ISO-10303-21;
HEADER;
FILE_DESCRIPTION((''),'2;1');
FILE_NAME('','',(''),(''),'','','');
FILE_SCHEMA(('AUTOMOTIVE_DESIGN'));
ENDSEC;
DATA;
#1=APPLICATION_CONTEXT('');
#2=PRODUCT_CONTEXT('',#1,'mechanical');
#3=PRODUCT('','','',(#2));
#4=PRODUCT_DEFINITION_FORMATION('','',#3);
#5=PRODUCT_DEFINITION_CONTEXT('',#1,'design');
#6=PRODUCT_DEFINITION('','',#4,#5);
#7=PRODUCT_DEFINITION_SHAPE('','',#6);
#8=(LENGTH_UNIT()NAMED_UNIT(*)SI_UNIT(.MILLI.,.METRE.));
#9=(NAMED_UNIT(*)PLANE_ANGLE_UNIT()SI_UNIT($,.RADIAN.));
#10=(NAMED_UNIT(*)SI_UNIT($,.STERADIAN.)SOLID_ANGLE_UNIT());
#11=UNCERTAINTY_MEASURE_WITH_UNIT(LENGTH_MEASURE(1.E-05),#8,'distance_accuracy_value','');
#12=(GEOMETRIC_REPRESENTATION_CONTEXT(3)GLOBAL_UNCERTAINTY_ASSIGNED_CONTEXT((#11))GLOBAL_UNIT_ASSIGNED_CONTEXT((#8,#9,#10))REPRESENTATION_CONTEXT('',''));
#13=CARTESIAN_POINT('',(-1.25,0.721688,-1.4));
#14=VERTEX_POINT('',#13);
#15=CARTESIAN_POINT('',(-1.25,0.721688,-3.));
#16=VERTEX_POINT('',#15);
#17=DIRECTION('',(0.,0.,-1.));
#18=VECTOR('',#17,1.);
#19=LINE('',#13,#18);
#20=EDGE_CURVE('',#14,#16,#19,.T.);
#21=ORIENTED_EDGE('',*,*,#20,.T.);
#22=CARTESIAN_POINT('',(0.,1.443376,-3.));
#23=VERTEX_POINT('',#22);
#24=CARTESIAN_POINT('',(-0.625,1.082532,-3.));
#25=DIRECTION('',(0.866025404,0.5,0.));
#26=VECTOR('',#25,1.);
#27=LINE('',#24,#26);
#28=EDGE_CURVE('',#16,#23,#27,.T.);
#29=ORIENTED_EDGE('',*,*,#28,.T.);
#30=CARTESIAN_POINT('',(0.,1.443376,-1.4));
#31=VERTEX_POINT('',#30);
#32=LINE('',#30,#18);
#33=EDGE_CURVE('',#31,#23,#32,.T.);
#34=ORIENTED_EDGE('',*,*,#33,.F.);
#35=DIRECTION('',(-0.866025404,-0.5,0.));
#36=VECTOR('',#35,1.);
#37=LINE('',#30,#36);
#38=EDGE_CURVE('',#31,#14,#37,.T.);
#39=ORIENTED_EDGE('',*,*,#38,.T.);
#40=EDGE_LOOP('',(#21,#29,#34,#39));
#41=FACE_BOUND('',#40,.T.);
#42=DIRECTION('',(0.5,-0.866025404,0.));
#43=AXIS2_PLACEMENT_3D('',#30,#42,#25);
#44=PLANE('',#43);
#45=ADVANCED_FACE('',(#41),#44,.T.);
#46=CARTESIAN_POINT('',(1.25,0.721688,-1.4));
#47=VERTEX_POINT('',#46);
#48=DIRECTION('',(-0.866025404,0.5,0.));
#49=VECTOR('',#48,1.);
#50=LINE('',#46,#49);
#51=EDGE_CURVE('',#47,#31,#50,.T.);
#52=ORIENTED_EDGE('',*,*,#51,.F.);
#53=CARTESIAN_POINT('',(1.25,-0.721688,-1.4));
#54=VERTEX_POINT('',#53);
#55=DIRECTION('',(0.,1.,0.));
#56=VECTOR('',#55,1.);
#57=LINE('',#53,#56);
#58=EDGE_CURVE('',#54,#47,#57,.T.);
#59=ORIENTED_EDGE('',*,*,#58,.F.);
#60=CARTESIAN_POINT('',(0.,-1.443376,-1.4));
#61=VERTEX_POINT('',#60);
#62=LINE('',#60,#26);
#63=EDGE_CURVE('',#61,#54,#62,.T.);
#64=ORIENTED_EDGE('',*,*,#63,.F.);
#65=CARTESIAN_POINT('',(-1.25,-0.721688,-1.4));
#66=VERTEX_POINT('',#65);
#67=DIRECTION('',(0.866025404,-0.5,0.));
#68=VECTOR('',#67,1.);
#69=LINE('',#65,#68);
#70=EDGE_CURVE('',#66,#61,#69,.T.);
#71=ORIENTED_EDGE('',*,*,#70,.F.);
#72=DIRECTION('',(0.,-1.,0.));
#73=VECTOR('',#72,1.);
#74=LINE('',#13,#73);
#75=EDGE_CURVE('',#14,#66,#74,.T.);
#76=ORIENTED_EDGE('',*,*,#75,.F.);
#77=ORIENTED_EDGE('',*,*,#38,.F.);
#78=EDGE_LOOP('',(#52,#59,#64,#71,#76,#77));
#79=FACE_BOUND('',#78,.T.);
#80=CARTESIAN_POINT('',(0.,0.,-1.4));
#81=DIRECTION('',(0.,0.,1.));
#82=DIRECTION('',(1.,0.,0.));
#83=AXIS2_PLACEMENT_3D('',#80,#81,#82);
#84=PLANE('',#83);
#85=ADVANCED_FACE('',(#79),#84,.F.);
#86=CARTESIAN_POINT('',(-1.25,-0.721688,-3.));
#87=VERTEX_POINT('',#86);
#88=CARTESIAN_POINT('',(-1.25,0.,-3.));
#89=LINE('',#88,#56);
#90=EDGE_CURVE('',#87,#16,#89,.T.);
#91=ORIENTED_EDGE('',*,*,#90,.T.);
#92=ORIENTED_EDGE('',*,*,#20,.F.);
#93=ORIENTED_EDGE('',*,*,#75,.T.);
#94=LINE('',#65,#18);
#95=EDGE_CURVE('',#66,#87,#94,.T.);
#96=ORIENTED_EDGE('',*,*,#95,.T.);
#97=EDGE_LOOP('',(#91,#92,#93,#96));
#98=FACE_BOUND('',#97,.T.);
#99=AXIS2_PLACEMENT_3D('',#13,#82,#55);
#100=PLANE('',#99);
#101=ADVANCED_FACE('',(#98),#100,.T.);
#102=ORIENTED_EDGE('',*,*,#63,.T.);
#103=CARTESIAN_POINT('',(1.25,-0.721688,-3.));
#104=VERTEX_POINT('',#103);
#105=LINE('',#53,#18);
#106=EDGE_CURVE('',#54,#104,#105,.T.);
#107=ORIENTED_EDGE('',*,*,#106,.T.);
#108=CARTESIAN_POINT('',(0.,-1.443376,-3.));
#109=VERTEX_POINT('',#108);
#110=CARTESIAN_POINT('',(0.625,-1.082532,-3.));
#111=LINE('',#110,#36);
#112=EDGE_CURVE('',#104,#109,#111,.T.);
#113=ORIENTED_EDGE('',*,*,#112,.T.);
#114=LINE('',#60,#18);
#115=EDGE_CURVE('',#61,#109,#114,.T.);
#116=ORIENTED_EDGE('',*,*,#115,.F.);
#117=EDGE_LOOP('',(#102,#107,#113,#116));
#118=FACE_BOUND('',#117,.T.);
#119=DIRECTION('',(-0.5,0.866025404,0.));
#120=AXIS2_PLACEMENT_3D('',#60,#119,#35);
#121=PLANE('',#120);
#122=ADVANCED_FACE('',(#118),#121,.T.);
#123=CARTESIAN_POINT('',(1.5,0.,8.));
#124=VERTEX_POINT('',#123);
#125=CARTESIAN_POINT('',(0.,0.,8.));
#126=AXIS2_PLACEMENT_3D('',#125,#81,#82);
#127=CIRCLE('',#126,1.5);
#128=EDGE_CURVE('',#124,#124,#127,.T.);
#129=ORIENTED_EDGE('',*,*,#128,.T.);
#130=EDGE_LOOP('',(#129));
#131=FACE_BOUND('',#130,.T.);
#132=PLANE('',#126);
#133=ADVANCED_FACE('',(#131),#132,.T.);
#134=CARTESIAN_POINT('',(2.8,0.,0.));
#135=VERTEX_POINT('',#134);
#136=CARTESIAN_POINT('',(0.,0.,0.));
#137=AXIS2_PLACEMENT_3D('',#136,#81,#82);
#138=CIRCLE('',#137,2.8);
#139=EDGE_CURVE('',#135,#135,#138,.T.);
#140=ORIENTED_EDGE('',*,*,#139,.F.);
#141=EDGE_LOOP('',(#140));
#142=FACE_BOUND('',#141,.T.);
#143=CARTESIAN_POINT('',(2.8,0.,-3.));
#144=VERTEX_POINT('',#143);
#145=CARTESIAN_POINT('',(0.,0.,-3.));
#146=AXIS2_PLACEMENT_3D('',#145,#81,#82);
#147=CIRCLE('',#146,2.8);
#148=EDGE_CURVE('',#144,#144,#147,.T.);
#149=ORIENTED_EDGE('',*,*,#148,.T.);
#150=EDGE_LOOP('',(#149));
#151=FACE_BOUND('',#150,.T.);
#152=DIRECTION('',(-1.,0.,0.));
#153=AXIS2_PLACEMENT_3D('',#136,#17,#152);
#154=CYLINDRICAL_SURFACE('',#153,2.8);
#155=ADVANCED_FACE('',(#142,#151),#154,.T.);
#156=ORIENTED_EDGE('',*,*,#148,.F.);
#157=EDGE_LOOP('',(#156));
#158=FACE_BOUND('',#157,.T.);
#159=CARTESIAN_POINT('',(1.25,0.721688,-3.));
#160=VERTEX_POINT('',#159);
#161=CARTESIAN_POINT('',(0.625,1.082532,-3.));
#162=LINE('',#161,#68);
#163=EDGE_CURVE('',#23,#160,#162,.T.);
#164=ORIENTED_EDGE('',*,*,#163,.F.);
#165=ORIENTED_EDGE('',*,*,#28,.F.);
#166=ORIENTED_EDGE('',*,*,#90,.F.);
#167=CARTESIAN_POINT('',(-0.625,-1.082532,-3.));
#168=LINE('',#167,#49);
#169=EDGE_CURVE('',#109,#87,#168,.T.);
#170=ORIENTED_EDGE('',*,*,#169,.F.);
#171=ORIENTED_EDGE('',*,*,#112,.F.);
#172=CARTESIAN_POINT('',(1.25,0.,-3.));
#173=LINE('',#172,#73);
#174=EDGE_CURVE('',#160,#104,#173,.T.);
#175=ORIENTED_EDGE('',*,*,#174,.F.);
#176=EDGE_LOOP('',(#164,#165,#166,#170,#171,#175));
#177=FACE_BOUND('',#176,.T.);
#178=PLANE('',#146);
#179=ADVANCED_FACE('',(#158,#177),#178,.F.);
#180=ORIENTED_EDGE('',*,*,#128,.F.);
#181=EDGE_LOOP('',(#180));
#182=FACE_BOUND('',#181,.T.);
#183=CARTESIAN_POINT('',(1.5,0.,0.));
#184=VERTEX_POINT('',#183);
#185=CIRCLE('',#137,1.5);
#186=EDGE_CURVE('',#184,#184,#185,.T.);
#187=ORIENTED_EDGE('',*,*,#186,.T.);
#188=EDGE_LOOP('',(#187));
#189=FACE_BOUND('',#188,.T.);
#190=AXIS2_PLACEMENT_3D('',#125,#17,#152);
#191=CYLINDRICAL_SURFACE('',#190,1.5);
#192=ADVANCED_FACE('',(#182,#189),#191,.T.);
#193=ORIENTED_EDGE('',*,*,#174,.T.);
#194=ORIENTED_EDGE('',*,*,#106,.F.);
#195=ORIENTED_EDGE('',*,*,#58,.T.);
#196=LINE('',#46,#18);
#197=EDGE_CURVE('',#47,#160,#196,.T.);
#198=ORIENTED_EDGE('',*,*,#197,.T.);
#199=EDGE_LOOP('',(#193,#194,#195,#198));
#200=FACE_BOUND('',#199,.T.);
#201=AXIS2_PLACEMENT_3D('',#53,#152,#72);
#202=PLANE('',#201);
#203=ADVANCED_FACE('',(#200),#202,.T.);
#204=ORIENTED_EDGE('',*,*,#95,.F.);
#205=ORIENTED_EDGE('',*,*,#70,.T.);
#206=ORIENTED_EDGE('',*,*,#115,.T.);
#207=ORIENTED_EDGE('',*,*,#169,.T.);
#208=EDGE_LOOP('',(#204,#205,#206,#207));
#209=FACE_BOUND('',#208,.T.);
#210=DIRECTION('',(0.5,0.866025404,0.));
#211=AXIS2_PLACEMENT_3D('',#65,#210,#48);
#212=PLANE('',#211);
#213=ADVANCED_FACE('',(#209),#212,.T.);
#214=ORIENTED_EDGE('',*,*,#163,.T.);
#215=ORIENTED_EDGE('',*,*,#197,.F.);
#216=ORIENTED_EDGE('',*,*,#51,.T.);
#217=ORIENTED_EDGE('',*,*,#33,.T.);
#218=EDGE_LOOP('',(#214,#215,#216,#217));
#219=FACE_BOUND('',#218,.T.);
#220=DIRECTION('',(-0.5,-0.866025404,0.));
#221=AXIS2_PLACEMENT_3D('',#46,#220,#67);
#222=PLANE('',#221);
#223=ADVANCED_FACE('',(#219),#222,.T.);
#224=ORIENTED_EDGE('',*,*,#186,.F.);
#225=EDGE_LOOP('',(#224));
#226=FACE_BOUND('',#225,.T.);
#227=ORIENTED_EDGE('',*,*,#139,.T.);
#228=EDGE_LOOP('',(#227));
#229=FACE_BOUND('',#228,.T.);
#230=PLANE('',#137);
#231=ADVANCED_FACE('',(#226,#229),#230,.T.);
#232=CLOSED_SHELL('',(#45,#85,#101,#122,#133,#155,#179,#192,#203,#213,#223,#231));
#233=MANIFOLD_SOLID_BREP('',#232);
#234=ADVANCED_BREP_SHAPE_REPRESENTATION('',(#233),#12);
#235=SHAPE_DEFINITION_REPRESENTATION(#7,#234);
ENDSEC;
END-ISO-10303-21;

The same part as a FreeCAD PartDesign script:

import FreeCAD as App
import Part
import Sketcher

V = App.Vector
Q = App.Units.Quantity


def add_polygon(sketch, points):
    """Adds a closed chain of lines whose ends are joined by coincident constraints."""
    first, n = sketch.GeometryCount, len(points)
    for a, b in zip(points, points[1:] + points[:1]):
        sketch.addGeometry(Part.LineSegment(App.Vector(*a, 0), App.Vector(*b, 0)), False)
    for i in range(n):
        sketch.addConstraint(Sketcher.Constraint("Coincident", first + i, 2, first + (i + 1) % n, 1))

doc = App.newDocument("Part")
body = doc.addObject("PartDesign::Body", "Body")

# Sketch on XY plane
sketch1 = body.newObject("Sketcher::SketchObject", "Sketch")
sketch1.AttachmentSupport = (doc.getObject("XY_Plane"), [""])
sketch1.MapMode = "FlatFace"
sketch1.AttachmentOffset = App.Placement(V(0, 0, -3), App.Rotation())
sketch1.addGeometry(Part.Circle(V(0, 0, 0), V(0, 0, 1), 2.8), False)
sketch1.addConstraint(Sketcher.Constraint("Coincident", 0, 3, -1, 1))
sketch1.addConstraint(Sketcher.Constraint("Diameter", 0, 5.6))
pad1 = body.newObject("PartDesign::Pad", "Pad")
pad1.Profile = sketch1
pad1.Length = 3

# Sketch on XY plane
sketch2 = body.newObject("Sketcher::SketchObject", "Sketch001")
sketch2.AttachmentSupport = (doc.getObject("XY_Plane"), [""])
sketch2.MapMode = "FlatFace"
sketch2.addGeometry(Part.Circle(V(0, 0, 0), V(0, 0, 1), 1.5), False)
sketch2.addConstraint(Sketcher.Constraint("Coincident", 0, 3, -1, 1))
sketch2.addConstraint(Sketcher.Constraint("Diameter", 0, 3.0))
pad2 = body.newObject("PartDesign::Pad", "Pad001")
pad2.Profile = sketch2
pad2.Length = 8

# Sketch on XY plane
sketch3 = body.newObject("Sketcher::SketchObject", "Sketch002")
sketch3.AttachmentSupport = (doc.getObject("XY_Plane"), [""])
sketch3.MapMode = "FlatFace"
sketch3.AttachmentOffset = App.Placement(V(0, 0, -3.2), App.Rotation())
add_polygon(sketch3, [(1.2, 0.7), (0, 1.4), (-1.2, 0.7), (-1.2, -0.7), (0, -1.4), (1.2, -0.7)])  # lines 0-5
sketch3.addConstraint(Sketcher.Constraint("Vertical", 2))
sketch3.addConstraint(Sketcher.Constraint("Vertical", 5))
sketch3.addConstraint(Sketcher.Constraint("Symmetric", 0, 2, 3, 2, -1, 1))
sketch3.addConstraint(Sketcher.Constraint("Symmetric", 1, 2, 4, 2, -1, 1))
sketch3.addConstraint(Sketcher.Constraint("PointOnObject", 0, 2, -2))
sketch3.addConstraint(Sketcher.Constraint("Parallel", 0, 3))
sketch3.addConstraint(Sketcher.Constraint("Horizontal", 2, 2, 4, 2))
sketch3.addConstraint(Sketcher.Constraint("Angle", 0, Q("150 deg")))
sketch3.addConstraint(Sketcher.Constraint("DistanceX", 2, 2, 4, 2, 2.5))
sketch3.addConstraint(Sketcher.Constraint("DistanceY", 2, 2, 2, 1, 1.443376))
pocket1 = body.newObject("PartDesign::Pocket", "Pocket")
pocket1.Profile = sketch3
pocket1.Length = 1.8
pocket1.Reversed = True

doc.recompute()
